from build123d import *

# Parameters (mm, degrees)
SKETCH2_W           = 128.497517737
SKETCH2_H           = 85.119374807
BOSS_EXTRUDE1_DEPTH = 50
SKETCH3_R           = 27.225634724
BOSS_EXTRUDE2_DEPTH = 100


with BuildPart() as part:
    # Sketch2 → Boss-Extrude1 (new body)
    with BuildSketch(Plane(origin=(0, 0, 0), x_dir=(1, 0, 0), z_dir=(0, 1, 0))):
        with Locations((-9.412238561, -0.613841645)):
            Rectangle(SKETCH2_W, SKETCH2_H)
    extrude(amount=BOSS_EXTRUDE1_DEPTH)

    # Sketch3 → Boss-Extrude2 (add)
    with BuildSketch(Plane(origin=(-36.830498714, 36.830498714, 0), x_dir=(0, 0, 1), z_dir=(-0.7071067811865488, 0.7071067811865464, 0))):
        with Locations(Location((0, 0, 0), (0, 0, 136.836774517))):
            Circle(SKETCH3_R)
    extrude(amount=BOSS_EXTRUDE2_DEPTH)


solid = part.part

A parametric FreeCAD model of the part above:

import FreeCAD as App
import Part
import Sketcher
from FreeCAD import Vector

doc = App.newDocument("Part")
params = doc.addObject("Spreadsheet::Sheet", "Params")
for row, (alias, value) in enumerate([
    ("pad1_length", "50 mm"),
    ("pad2_length", "100 mm"),
], start=1):
    params.set(f"A{row}", alias)
    params.set(f"B{row}", "=" + value)
    params.setAlias(f"B{row}", alias)

body = doc.addObject("PartDesign::Body", "Body")

# Sketch on XZ plane
sketch1 = body.newObject("Sketcher::SketchObject", "Sketch")
sketch1.AttachmentSupport = (doc.getObject("XZ_Plane"), [""])
sketch1.MapMode = "FlatFace"
sketch1.addGeometry(Part.LineSegment(Vector(-74, -42, 0), Vector(-74, 43, 0)), False)
sketch1.addGeometry(Part.LineSegment(Vector(-74, 43, 0), Vector(55, 43, 0)), False)
sketch1.addGeometry(Part.LineSegment(Vector(55, 43, 0), Vector(55, -42, 0)), False)
sketch1.addGeometry(Part.LineSegment(Vector(55, -42, 0), Vector(-74, -42, 0)), False)
sketch1.addConstraint(Sketcher.Constraint("Coincident", 0, 2, 1, 1))
sketch1.addConstraint(Sketcher.Constraint("Coincident", 1, 2, 2, 1))
sketch1.addConstraint(Sketcher.Constraint("Coincident", 2, 2, 3, 1))
sketch1.addConstraint(Sketcher.Constraint("Coincident", 3, 2, 0, 1))
sketch1.addConstraint(Sketcher.Constraint("Vertical", 0))
sketch1.addConstraint(Sketcher.Constraint("Horizontal", 1))
sketch1.addConstraint(Sketcher.Constraint("Vertical", 2))
sketch1.addConstraint(Sketcher.Constraint("Horizontal", 3))
sketch1.addConstraint(Sketcher.Constraint("DistanceX", 1, 1, 1, 2, 128.497518))
sketch1.addConstraint(Sketcher.Constraint("DistanceY", 0, 1, 0, 2, 85.119375))
sketch1.addConstraint(Sketcher.Constraint("DistanceY", -1, 1, 0, 2, 43.173529))
sketch1.addConstraint(Sketcher.Constraint("DistanceX", -1, 1, 1, 2, 54.83652))
pad1 = body.newObject("PartDesign::Pad", "Pad")
pad1.Profile = sketch1
pad1.setExpression("Length", "Params.pad1_length")
pad1.Reversed = True

# Sketch on an angled plane
sketch2 = body.newObject("Sketcher::SketchObject", "Sketch001")
sketch2.Placement = App.Placement(Vector(-36.830499, 36.830499, 0), App.Rotation(Vector(0, 0, 1), Vector(0.707106781, 0.707106781, 0), Vector(-0.707106781, 0.707106781, 0), "ZXY"))
sketch2.addGeometry(Part.Circle(Vector(0, 0, 0), Vector(0, 0, 1), 27), False)
sketch2.addConstraint(Sketcher.Constraint("Coincident", 0, 3, -1, 1))
sketch2.addConstraint(Sketcher.Constraint("Diameter", 0, 54.451269))
pad2 = body.newObject("PartDesign::Pad", "Pad001")
pad2.Profile = sketch2
pad2.setExpression("Length", "Params.pad2_length")

doc.recompute()
